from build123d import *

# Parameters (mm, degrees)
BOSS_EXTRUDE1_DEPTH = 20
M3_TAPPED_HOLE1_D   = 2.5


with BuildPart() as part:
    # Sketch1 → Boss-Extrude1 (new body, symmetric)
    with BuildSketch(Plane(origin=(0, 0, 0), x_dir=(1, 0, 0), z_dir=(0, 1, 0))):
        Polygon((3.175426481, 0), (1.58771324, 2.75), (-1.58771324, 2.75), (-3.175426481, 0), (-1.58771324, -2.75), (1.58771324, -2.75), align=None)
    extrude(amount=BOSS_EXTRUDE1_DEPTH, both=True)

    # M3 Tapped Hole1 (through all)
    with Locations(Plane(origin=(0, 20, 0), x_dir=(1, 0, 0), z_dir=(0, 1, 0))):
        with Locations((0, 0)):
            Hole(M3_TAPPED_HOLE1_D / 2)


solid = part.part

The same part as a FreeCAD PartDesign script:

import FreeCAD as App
import Part
import Sketcher
from FreeCAD import Vector
Q = App.Units.Quantity


def add_polygon(sketch, points):
    """Adds a closed chain of lines whose ends are joined by coincident constraints."""
    first, n = sketch.GeometryCount, len(points)
    for a, b in zip(points, points[1:] + points[:1]):
        sketch.addGeometry(Part.LineSegment(App.Vector(*a, 0), App.Vector(*b, 0)), False)
    for i in range(n):
        sketch.addConstraint(Sketcher.Constraint("Coincident", first + i, 2, first + (i + 1) % n, 1))

doc = App.newDocument("Part")
body = doc.addObject("PartDesign::Body", "Body")

# Sketch on XZ plane
sketch1 = body.newObject("Sketcher::SketchObject", "Sketch")
sketch1.AttachmentSupport = (doc.getObject("XZ_Plane"), [""])
sketch1.MapMode = "FlatFace"
add_polygon(sketch1, [(3.175426, 0), (1.587713, -2.75), (-1.587713, -2.75), (-3.175426, 0), (-1.587713, 2.75), (1.587713, 2.75)])  # lines 0-5
sketch1.addConstraint([
    Sketcher.Constraint("Horizontal", 1),
    Sketcher.Constraint("Horizontal", 4),
    Sketcher.Constraint("Symmetric", 0, 2, 3, 2, -1, 1),
    Sketcher.Constraint("Symmetric", 2, 2, 5, 2, -1, 1),
    Sketcher.Constraint("PointOnObject", 2, 2, -1),
    Sketcher.Constraint("Parallel", 2, 5),
    Sketcher.Constraint("Vertical", 1, 2, 3, 2),
    Sketcher.Constraint("Angle", 0, Q("-120 deg")),
    Sketcher.Constraint("DistanceY", 1, 2, 3, 2, 5.5),
    Sketcher.Constraint("DistanceX", 1, 2, 1, 1, 3.175426),
])
pad1 = body.newObject("PartDesign::Pad", "Pad")
pad1.Profile = sketch1
pad1.Length = 40
pad1.Midplane = True

# Sketch on XZ plane
sketch2 = body.newObject("Sketcher::SketchObject", "Sketch001")
sketch2.AttachmentSupport = (doc.getObject("XZ_Plane"), [""])
sketch2.MapMode = "FlatFace"
sketch2.AttachmentOffset = App.Placement(Vector(0, 0, -20), App.Rotation())
sketch2.addGeometry(Part.Circle(Vector(0, 0, 0), Vector(0, 0, 1), 1.25), False)
sketch2.addConstraint([
    Sketcher.Constraint("Coincident", 0, 3, -1, 1),
    Sketcher.Constraint("Diameter", 0, 2.5),
])
doc.recompute()
hole = body.newObject("PartDesign::Hole", "Hole")
hole.Profile = sketch2
hole.ThreadType = "None"
hole.Diameter = 2.5
hole.DepthType = "ThroughAll"
hole.Reversed = True

doc.recompute()
